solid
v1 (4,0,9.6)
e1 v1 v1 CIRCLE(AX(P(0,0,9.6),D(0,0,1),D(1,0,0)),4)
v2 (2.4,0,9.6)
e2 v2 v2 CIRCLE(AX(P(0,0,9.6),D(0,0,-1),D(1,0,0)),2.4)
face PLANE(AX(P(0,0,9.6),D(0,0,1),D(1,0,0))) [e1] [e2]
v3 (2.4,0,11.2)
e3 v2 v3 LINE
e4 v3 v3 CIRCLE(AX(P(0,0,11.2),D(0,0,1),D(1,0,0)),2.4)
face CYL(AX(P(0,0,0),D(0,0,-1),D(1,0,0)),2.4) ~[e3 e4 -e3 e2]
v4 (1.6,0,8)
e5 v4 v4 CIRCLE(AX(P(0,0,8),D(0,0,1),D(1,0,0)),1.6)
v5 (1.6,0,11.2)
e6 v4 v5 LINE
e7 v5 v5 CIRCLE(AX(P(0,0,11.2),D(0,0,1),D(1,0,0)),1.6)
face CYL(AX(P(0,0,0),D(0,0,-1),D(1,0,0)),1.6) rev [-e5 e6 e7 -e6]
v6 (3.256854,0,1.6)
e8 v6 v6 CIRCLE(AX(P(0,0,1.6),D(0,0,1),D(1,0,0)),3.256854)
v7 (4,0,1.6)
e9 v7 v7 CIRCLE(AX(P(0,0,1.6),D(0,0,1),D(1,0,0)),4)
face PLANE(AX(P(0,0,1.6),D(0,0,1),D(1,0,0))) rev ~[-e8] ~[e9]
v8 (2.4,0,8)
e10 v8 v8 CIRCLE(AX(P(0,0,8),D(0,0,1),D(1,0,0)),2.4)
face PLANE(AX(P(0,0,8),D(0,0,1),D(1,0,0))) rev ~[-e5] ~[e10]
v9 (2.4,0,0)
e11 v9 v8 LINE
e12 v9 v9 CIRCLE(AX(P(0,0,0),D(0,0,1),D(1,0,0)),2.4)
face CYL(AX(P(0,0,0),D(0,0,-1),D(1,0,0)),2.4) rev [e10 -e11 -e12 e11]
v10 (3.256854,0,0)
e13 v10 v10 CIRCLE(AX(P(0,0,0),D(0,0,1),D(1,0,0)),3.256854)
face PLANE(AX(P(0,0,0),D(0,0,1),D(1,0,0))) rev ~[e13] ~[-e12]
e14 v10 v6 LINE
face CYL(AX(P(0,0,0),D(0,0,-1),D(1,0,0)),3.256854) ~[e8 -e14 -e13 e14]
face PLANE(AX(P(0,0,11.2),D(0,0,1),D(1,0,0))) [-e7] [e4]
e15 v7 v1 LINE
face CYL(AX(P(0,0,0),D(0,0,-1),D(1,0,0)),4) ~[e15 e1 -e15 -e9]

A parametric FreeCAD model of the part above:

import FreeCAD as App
import Part
import Sketcher
from FreeCAD import Vector

doc = App.newDocument("Part")
body = doc.addObject("PartDesign::Body", "Body")

sketch1 = body.newObject("Sketcher::SketchObject", "Sketch")
sketch1.AttachmentSupport = (doc.getObject("XY_Plane"), [""])
sketch1.MapMode = "FlatFace"
sketch1.addGeometry(Part.Circle(Vector(0, 0, 0), Vector(0, 0, 1), 4), False)
sketch1.addGeometry(Part.Circle(Vector(0, 0, 0), Vector(0, 0, 1), 1.6), False)
sketch1.addConstraint(Sketcher.Constraint("Coincident", 0, 3, -1, 1))
sketch1.addConstraint(Sketcher.Constraint("Coincident", 1, 3, -1, 1))
sketch1.addConstraint(Sketcher.Constraint("Diameter", 0, 8.0))
sketch1.addConstraint(Sketcher.Constraint("Diameter", 1, 3.2))
pad1 = body.newObject("PartDesign::Pad", "Pad")
pad1.Profile = sketch1
pad1.Length = 9.6

sketch2 = body.newObject("Sketcher::SketchObject", "Sketch001")
sketch2.AttachmentSupport = (doc.getObject("XY_Plane"), [""])
sketch2.MapMode = "FlatFace"
sketch2.addGeometry(Part.Circle(Vector(0, 0, 0), Vector(0, 0, 1), 2.4), False)
sketch2.addGeometry(Part.Circle(Vector(0, 0, 0), Vector(0, 0, 1), 1.6), False)
sketch2.addConstraint(Sketcher.Constraint("Coincident", 0, 3, -1, 1))
sketch2.addConstraint(Sketcher.Constraint("Coincident", 1, 3, -1, 1))
sketch2.addConstraint(Sketcher.Constraint("Diameter", 0, 4.8))
sketch2.addConstraint(Sketcher.Constraint("Diameter", 1, 3.2))
pad2 = body.newObject("PartDesign::Pad", "Pad001")
pad2.Profile = sketch2
pad2.Length = 11.2

sketch3 = body.newObject("Sketcher::SketchObject", "Sketch002")
sketch3.AttachmentSupport = (doc.getObject("XY_Plane"), [""])
sketch3.MapMode = "FlatFace"
sketch3.addGeometry(Part.Circle(Vector(0, 0, 0), Vector(0, 0, 1), 2.4), False)
sketch3.addGeometry(Part.Circle(Vector(0, 0, 0), Vector(0, 0, 1), 1.6), False)
sketch3.addConstraint(Sketcher.Constraint("Coincident", 0, 3, -1, 1))
sketch3.addConstraint(Sketcher.Constraint("Coincident", 1, 3, -1, 1))
sketch3.addConstraint(Sketcher.Constraint("Diameter", 0, 4.8))
sketch3.addConstraint(Sketcher.Constraint("Diameter", 1, 3.2))
pocket1 = body.newObject("PartDesign::Pocket", "Pocket")
pocket1.Profile = sketch3
pocket1.Length = 8
pocket1.Reversed = True

sketch4 = body.newObject("Sketcher::SketchObject", "Sketch003")
sketch4.AttachmentSupport = (doc.getObject("XY_Plane"), [""])
sketch4.MapMode = "FlatFace"
sketch4.addGeometry(Part.Circle(Vector(0, 0, 0), Vector(0, 0, 1), 4), False)
sketch4.addGeometry(Part.Circle(Vector(0, 0, 0), Vector(0, 0, 1), 3.3), False)
sketch4.addConstraint(Sketcher.Constraint("Coincident", 0, 3, -1, 1))
sketch4.addConstraint(Sketcher.Constraint("Coincident", 1, 3, -1, 1))
sketch4.addConstraint(Sketcher.Constraint("Diameter", 0, 8.0))
sketch4.addConstraint(Sketcher.Constraint("Diameter", 1, 6.513708))
pocket2 = body.newObject("PartDesign::Pocket", "Pocket001")
pocket2.Profile = sketch4
pocket2.Length = 1.6
pocket2.Reversed = True

doc.recompute()
